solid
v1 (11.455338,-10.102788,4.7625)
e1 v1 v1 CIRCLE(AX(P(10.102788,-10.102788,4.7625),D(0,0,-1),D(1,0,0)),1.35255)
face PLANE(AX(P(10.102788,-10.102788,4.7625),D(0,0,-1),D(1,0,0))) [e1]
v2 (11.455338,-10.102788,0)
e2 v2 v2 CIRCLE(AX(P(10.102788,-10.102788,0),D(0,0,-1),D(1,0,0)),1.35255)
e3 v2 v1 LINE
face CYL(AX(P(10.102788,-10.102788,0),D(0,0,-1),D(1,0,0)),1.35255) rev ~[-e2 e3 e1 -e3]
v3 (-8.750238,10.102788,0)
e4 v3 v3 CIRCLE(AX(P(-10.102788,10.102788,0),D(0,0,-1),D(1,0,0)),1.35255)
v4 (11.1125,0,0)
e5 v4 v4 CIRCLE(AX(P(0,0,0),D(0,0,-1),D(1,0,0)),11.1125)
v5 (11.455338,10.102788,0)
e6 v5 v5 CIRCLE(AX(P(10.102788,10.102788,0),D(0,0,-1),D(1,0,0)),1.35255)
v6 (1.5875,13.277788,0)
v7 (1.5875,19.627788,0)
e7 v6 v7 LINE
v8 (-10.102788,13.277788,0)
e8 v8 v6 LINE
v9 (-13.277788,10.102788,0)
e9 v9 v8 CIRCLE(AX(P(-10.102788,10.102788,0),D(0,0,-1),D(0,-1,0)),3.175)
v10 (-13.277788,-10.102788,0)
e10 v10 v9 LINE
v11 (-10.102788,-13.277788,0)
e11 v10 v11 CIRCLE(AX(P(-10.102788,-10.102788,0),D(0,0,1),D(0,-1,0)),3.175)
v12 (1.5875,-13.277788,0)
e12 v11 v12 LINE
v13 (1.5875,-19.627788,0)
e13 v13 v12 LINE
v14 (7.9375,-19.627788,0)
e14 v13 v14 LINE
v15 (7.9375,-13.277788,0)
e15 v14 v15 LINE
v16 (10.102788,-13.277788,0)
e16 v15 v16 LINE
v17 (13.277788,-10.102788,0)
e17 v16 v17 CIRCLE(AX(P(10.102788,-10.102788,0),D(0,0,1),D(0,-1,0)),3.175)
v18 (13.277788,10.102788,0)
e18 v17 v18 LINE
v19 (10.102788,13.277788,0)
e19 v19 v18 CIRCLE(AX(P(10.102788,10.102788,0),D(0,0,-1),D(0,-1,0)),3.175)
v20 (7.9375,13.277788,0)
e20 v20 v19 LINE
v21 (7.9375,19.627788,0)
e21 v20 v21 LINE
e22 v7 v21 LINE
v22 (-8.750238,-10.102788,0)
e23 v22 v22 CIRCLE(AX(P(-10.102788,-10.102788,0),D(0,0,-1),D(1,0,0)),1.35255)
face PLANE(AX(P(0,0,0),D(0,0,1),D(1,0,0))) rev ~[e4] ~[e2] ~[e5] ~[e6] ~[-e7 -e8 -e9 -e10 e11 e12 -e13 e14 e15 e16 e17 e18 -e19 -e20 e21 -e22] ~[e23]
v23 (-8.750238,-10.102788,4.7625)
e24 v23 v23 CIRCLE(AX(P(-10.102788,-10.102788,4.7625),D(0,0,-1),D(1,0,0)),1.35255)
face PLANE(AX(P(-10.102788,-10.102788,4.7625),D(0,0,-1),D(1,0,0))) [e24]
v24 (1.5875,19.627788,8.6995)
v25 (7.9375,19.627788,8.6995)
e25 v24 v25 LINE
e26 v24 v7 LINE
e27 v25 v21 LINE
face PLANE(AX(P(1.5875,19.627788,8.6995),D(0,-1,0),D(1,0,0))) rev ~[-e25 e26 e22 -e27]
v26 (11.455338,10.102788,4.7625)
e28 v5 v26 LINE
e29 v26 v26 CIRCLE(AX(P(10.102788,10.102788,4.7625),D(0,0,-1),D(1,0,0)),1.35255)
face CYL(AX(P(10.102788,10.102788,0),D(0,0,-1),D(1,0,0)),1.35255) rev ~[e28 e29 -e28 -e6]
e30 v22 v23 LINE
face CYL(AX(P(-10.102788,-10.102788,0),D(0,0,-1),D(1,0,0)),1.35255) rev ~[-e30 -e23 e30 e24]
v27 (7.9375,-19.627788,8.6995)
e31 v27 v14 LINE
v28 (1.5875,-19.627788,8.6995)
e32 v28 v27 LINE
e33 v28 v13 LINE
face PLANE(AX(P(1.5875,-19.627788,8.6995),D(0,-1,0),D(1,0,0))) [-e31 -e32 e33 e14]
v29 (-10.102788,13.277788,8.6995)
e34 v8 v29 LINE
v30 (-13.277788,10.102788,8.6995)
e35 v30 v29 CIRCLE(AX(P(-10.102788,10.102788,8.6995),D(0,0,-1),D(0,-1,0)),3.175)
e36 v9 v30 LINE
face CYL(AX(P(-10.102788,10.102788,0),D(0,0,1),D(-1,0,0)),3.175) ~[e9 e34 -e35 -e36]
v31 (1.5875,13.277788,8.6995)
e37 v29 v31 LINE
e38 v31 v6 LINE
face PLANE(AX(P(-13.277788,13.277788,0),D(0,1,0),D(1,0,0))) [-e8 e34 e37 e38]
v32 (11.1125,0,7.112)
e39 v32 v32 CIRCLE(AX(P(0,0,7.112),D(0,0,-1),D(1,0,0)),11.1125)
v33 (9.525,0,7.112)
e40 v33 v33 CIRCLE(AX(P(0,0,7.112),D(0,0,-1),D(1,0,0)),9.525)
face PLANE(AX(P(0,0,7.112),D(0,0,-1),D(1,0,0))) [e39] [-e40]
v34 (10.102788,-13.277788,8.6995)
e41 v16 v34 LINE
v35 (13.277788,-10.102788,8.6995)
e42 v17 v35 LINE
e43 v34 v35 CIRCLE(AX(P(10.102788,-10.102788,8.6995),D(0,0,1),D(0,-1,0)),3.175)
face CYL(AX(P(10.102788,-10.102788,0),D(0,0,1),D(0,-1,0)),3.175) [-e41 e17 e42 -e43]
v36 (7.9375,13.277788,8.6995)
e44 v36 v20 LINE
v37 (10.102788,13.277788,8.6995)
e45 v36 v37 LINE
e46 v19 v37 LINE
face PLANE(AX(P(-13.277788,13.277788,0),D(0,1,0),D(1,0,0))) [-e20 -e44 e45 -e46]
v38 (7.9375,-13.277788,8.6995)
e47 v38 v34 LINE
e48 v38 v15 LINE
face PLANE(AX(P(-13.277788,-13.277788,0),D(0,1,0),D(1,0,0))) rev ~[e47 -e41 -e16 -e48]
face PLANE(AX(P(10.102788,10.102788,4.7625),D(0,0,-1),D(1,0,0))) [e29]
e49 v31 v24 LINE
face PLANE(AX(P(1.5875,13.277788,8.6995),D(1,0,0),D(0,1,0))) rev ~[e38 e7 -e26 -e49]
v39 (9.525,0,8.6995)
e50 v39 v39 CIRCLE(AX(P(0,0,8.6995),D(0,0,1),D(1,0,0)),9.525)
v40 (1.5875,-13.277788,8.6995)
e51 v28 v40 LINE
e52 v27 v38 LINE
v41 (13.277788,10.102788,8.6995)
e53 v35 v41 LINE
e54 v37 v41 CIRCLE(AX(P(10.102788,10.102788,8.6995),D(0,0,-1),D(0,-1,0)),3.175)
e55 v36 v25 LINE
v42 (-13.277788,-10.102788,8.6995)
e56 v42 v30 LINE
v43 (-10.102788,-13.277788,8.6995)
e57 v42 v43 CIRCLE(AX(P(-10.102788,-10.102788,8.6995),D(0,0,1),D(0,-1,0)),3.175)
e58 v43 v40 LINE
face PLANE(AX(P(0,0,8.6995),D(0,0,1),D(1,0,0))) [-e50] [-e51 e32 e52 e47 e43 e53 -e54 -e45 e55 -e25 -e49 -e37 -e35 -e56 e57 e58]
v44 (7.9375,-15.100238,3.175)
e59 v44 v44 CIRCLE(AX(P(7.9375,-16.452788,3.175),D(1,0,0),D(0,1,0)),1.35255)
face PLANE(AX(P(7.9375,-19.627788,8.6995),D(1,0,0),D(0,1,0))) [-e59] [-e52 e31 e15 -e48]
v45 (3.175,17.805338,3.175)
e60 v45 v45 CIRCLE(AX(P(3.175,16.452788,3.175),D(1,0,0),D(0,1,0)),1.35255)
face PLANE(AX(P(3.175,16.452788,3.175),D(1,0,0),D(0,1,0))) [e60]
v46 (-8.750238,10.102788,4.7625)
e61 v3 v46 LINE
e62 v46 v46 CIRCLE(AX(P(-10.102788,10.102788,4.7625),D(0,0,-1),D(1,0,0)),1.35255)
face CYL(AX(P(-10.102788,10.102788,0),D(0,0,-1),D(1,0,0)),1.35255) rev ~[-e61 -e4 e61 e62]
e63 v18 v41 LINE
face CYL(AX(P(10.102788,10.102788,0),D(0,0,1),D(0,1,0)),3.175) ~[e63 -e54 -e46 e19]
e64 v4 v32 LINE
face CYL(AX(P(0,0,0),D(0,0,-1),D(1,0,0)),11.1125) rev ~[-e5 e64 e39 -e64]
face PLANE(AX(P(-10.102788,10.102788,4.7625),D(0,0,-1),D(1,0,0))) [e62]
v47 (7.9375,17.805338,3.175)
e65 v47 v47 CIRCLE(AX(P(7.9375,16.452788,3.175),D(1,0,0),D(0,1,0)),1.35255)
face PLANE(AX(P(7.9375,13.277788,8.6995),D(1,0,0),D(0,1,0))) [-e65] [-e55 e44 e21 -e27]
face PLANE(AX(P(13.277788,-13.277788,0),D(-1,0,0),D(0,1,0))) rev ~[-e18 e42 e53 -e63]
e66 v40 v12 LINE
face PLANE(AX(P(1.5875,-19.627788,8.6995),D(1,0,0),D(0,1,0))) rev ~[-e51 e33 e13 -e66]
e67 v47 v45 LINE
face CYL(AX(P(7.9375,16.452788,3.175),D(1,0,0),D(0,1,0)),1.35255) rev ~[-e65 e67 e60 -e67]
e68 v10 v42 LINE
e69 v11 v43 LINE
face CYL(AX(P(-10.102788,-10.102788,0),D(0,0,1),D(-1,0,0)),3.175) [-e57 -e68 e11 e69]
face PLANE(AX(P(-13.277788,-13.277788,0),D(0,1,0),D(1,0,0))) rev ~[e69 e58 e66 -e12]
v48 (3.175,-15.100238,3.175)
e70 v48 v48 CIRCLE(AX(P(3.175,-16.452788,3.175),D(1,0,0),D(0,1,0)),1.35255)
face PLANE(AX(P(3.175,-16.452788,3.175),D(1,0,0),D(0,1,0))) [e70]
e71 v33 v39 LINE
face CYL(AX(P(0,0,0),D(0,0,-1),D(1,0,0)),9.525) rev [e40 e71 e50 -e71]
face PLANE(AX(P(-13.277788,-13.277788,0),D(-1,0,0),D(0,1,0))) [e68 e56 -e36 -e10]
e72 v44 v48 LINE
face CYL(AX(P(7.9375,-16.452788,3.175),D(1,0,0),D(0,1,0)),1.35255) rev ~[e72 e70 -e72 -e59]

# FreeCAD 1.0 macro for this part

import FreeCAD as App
import Part
import Sketcher
from FreeCAD import Vector
Q = App.Units.Quantity


def edges_at(feature, points):
    """Names of the edges that pass closest to the given points."""
    edges = feature.Shape.Edges
    near = lambda p: min(range(len(edges)), key=lambda i: edges[i].distToShape(Part.Vertex(*p))[0])
    return sorted({f"Edge{near(p) + 1}" for p in points})


def add_polygon(sketch, points):
    """Adds a closed chain of lines whose ends are joined by coincident constraints."""
    first, n = sketch.GeometryCount, len(points)
    for a, b in zip(points, points[1:] + points[:1]):
        sketch.addGeometry(Part.LineSegment(App.Vector(*a, 0), App.Vector(*b, 0)), False)
    for i in range(n):
        sketch.addConstraint(Sketcher.Constraint("Coincident", first + i, 2, first + (i + 1) % n, 1))

doc = App.newDocument("Part")
body = doc.addObject("PartDesign::Body", "Body")

# Sketch on XY plane
sketch1 = body.newObject("Sketcher::SketchObject", "Sketch")
sketch1.AttachmentSupport = (doc.getObject("XY_Plane"), [""])
sketch1.MapMode = "FlatFace"
add_polygon(sketch1, [(-13.277788, 13.277788), (-13.277788, -13.277788), (13.277788, -13.277788), (13.277788, 13.277788)])  # lines 0-3
sketch1.addGeometry(Part.Circle(Vector(0, 0, 0), Vector(0, 0, 1), 9.525), False)  # 4
sketch1.addConstraint([
    Sketcher.Constraint("Vertical", 0),
    Sketcher.Constraint("Horizontal", 1),
    Sketcher.Constraint("Vertical", 2),
    Sketcher.Constraint("Horizontal", 3),
    Sketcher.Constraint("Coincident", 4, 3, -1, 1),
    Sketcher.Constraint("Symmetric", 0, 2, 2, 2, -1, 1),
    Sketcher.Constraint("Equal", 3, 0),
    Sketcher.Constraint("Diameter", 4, Q("0.75 in")),
    Sketcher.Constraint("DistanceX", 1, 1, 1, 2, 26.555576),
])
pad1 = body.newObject("PartDesign::Pad", "Pad")
pad1.Profile = sketch1
pad1.Length = Q("0.3425 in")
doc.recompute()

fillet = body.newObject("PartDesign::Fillet", "Fillet")
fillet.Base = (pad1, edges_at(pad1, [
    (-13.278, 13.278, 4.35),
    (-13.278, -13.278, 4.35),
    (13.278, -13.278, 4.35),
    (13.278, 13.278, 4.35),
]))
fillet.Radius = Q("0.125 in")

# Sketch on XY plane
sketch2 = body.newObject("Sketcher::SketchObject", "Sketch001")
sketch2.AttachmentSupport = (doc.getObject("XY_Plane"), [""])
sketch2.MapMode = "FlatFace"
sketch2.addGeometry(Part.Circle(Vector(0, 0, 0), Vector(0, 0, 1), 11.1125), False)
sketch2.addConstraint([
    Sketcher.Constraint("Coincident", 0, 3, -1, 1),
    Sketcher.Constraint("Diameter", 0, Q("0.875 in")),
])
pocket1 = body.newObject("PartDesign::Pocket", "Pocket")
pocket1.Profile = sketch2
pocket1.Length = Q("0.28 in")
pocket1.Reversed = True

# Sketch on XY plane
sketch3 = body.newObject("Sketcher::SketchObject", "Sketch002")
sketch3.AttachmentSupport = (doc.getObject("XY_Plane"), [""])
sketch3.MapMode = "FlatFace"
sketch3.addGeometry([
    Part.Circle(Vector(10.102788, -10.102788, 0), Vector(0, 0, 1), 1.35255),
    Part.Circle(Vector(-10.102788, -10.102788, 0), Vector(0, 0, 1), 1.35255),
    Part.Circle(Vector(-10.102788, 10.102788, 0), Vector(0, 0, 1), 1.35255),
    Part.Circle(Vector(10.102788, 10.102788, 0), Vector(0, 0, 1), 1.35255),
], False)
sketch3.addConstraint([
    Sketcher.Constraint("Equal", 0, 1),
    Sketcher.Constraint("Equal", 1, 2),
    Sketcher.Constraint("Equal", 2, 3),
    Sketcher.Constraint("Symmetric", 0, 3, 2, 3, -1, 1),
    Sketcher.Constraint("Symmetric", 1, 3, 3, 3, -1, 1),
    Sketcher.Constraint("Symmetric", 0, 3, 1, 3, -2),
    Sketcher.Constraint("Diameter", 0, Q("0.1065 in")),
    Sketcher.Constraint("DistanceX", -1, 1, 0, 3, 10.102788),
    Sketcher.Constraint("DistanceY", 0, 3, -1, 1, 10.102788),
])
pocket2 = body.newObject("PartDesign::Pocket", "Pocket001")
pocket2.Profile = sketch3
pocket2.Length = Q("0.1875 in")
pocket2.Reversed = True

# Sketch on XY plane
sketch4 = body.newObject("Sketcher::SketchObject", "Sketch003")
sketch4.AttachmentSupport = (doc.getObject("XY_Plane"), [""])
sketch4.MapMode = "FlatFace"
sketch4.AttachmentOffset = App.Placement(Vector(0, 0, 0.3425 * 25.4), App.Rotation())
add_polygon(sketch4, [(1.5875, -13.277788), (1.5875, -19.627788), (7.9375, -19.627788), (7.9375, -13.277788)])  # lines 0-3
add_polygon(sketch4, [(1.5875, 19.627788), (1.5875, 13.277788), (7.9375, 13.277788), (7.9375, 19.627788)])  # lines 4-7
sketch4.addConstraint([
    Sketcher.Constraint("Vertical", 0),
    Sketcher.Constraint("Horizontal", 1),
    Sketcher.Constraint("Vertical", 2),
    Sketcher.Constraint("Horizontal", 3),
    Sketcher.Constraint("Vertical", 4),
    Sketcher.Constraint("Horizontal", 5),
    Sketcher.Constraint("Vertical", 6),
    Sketcher.Constraint("Horizontal", 7),
    Sketcher.Constraint("Symmetric", 3, 2, 4, 2, -1),
    Sketcher.Constraint("Symmetric", 1, 2, 6, 2, -1),
    Sketcher.Constraint("Equal", 7, 0),
    Sketcher.Constraint("DistanceX", 1, 1, 1, 2, Q("0.25 in")),
    Sketcher.Constraint("DistanceX", -1, 1, 0, 2, Q("0.0625 in")),
    Sketcher.Constraint("DistanceY", 0, 2, -1, 1, 19.627788),
])
pad2 = body.newObject("PartDesign::Pad", "Pad001")
pad2.Profile = sketch4
pad2.Length = Q("0.3425 in")
pad2.Reversed = True

# Sketch on YZ plane
sketch5 = body.newObject("Sketcher::SketchObject", "Sketch004")
sketch5.AttachmentSupport = (doc.getObject("YZ_Plane"), [""])
sketch5.MapMode = "FlatFace"
sketch5.AttachmentOffset = App.Placement(Vector(0, 0, 0.3125 * 25.4), App.Rotation())
sketch5.addGeometry([
    Part.Circle(Vector(16.452788, 3.175, 0), Vector(0, 0, 1), 1.35255),
    Part.Circle(Vector(-16.452788, 3.175, 0), Vector(0, 0, 1), 1.35255),
], False)
sketch5.addConstraint([
    Sketcher.Constraint("Equal", 0, 1),
    Sketcher.Constraint("Symmetric", 0, 3, 1, 3, -2),
    Sketcher.Constraint("Diameter", 0, Q("0.1065 in")),
    Sketcher.Constraint("DistanceY", -1, 1, 0, 3, Q("0.125 in")),
    Sketcher.Constraint("DistanceX", -1, 1, 0, 3, 16.452788),
])
pocket3 = body.newObject("PartDesign::Pocket", "Pocket002")
pocket3.Profile = sketch5
pocket3.Length = Q("0.1875 in")

doc.recompute()
